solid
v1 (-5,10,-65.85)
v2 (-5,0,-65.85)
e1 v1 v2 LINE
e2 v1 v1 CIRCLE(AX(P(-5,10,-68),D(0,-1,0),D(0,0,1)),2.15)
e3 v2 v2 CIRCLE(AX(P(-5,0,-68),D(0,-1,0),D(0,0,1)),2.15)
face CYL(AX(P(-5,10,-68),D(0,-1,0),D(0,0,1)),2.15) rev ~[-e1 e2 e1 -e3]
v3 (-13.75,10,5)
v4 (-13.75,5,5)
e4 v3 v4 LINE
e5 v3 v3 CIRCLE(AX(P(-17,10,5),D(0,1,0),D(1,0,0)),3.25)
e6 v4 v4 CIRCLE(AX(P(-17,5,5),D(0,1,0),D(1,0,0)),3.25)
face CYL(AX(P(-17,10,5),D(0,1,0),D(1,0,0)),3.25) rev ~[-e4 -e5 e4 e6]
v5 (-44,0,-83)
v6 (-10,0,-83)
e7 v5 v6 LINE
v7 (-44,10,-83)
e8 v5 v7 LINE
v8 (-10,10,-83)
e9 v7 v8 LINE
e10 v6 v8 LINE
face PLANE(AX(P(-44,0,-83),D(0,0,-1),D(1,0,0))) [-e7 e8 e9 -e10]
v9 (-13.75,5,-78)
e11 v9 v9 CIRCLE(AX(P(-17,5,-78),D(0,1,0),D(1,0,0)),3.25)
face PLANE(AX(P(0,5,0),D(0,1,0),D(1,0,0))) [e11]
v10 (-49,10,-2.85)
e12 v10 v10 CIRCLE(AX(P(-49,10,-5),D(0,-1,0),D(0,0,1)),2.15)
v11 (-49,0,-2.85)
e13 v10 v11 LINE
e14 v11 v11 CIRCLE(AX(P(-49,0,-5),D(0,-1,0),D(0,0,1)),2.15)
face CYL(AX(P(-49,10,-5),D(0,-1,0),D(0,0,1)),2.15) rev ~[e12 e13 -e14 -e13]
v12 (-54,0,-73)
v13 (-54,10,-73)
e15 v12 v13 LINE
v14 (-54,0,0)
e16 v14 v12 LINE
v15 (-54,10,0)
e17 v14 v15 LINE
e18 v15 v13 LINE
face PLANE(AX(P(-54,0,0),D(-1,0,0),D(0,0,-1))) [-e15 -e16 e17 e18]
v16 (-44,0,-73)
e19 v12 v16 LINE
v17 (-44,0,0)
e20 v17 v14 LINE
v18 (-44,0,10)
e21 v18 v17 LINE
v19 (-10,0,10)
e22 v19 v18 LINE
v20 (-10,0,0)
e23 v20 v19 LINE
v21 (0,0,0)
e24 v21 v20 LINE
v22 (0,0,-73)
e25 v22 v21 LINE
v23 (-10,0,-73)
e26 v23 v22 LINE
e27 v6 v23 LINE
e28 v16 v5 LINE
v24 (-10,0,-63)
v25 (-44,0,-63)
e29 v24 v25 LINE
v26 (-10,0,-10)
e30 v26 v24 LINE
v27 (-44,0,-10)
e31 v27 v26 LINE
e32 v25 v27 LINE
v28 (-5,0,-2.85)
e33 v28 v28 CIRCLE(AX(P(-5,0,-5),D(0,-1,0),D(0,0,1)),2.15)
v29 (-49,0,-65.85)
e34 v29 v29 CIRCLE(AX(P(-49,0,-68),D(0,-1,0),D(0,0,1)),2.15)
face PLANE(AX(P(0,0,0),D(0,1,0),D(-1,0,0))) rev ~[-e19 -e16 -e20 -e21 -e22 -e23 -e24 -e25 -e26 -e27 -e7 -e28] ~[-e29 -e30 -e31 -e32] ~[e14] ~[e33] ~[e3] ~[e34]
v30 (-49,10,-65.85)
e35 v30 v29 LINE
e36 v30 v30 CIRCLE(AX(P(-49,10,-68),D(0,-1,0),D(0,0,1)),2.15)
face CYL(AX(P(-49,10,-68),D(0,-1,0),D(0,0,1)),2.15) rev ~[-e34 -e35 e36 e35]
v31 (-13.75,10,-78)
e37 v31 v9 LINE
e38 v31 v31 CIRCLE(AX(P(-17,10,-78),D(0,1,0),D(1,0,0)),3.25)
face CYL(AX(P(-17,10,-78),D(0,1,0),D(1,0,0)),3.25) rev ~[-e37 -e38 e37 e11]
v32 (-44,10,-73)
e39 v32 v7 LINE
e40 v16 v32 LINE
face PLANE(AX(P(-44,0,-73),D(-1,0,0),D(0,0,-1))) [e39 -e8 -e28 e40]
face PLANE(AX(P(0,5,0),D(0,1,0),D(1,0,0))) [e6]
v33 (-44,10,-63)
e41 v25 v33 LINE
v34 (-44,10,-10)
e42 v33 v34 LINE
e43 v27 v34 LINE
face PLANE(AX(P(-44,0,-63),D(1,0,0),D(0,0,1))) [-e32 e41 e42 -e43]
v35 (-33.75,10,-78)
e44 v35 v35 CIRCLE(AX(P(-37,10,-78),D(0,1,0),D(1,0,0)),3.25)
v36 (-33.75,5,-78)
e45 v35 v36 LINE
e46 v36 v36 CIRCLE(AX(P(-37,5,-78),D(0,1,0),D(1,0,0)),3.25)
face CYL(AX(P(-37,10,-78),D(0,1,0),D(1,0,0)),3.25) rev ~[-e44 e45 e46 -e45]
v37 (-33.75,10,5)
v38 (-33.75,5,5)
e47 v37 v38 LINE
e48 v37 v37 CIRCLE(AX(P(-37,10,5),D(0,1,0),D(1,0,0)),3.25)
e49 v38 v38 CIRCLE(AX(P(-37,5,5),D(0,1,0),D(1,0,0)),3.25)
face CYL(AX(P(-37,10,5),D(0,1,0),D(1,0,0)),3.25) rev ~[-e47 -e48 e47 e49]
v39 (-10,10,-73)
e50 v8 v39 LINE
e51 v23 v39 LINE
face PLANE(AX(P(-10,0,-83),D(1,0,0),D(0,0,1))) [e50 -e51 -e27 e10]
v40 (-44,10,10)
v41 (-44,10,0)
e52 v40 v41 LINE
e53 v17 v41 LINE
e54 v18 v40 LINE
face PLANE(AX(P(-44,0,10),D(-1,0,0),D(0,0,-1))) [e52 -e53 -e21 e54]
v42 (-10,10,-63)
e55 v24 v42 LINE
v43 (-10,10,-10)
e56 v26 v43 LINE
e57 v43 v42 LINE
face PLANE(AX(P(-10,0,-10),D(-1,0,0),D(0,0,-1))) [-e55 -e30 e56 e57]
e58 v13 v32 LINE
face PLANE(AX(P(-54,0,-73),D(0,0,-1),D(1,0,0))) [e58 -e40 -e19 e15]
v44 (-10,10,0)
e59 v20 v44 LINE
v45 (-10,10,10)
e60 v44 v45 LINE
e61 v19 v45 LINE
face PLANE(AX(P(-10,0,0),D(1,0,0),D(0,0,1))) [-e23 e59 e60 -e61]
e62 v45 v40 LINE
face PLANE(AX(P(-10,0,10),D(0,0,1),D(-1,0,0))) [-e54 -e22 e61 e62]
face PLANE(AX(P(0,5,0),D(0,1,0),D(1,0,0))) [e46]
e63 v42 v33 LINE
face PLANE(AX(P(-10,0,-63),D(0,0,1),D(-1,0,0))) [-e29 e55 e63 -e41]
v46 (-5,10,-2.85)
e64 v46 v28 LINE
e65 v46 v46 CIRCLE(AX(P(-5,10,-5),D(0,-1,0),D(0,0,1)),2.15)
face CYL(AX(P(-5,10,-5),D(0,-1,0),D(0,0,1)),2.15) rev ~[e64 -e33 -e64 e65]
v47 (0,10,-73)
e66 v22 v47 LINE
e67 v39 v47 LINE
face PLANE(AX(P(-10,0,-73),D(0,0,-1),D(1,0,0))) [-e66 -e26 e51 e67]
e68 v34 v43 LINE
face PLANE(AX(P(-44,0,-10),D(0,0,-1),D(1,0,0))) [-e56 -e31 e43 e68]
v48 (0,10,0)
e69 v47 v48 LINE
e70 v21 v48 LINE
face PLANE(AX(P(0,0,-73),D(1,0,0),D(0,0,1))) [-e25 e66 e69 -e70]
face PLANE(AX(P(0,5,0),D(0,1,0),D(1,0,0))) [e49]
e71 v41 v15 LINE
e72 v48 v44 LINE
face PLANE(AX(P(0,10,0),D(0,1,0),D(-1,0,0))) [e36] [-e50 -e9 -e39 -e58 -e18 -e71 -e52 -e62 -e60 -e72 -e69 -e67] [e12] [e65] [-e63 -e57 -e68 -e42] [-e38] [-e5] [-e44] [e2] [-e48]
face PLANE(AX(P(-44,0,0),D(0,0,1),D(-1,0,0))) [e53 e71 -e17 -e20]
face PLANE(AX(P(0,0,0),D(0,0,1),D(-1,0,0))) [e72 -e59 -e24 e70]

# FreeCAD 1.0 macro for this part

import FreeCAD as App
import Part
import Sketcher

V = App.Vector
Q = App.Units.Quantity

doc = App.newDocument("Part")
body = doc.addObject("PartDesign::Body", "Body")

sketch1 = body.newObject("Sketcher::SketchObject", "Sketch")
sketch1.AttachmentSupport = (doc.getObject("XZ_Plane"), [""])
sketch1.MapMode = "FlatFace"
sketch1.addGeometry([
    Part.LineSegment(V(-10, 0, 0), V(0, 0, 0)),
    Part.LineSegment(V(0, 0, 0), V(0, -73, 0)),
    Part.LineSegment(V(0, -73, 0), V(-10, -73, 0)),
    Part.LineSegment(V(-10, -73, 0), V(-10, -83, 0)),
    Part.LineSegment(V(-10, -83, 0), V(-44, -83, 0)),
    Part.LineSegment(V(-44, -83, 0), V(-44, -73, 0)),
    Part.LineSegment(V(-44, -73, 0), V(-54, -73, 0)),
    Part.LineSegment(V(-54, -73, 0), V(-54, 0, 0)),
    Part.LineSegment(V(-54, 0, 0), V(-44, 0, 0)),
    Part.LineSegment(V(-44, 0, 0), V(-44, 10, 0)),
    Part.LineSegment(V(-44, 10, 0), V(-10, 10, 0)),
    Part.LineSegment(V(-10, 10, 0), V(-10, 0, 0)),
], False)
sketch1.addConstraint([
    Sketcher.Constraint("Coincident", 0, 2, 1, 1),
    Sketcher.Constraint("Coincident", 1, 2, 2, 1),
    Sketcher.Constraint("Coincident", 2, 2, 3, 1),
    Sketcher.Constraint("Coincident", 3, 2, 4, 1),
    Sketcher.Constraint("Coincident", 4, 2, 5, 1),
    Sketcher.Constraint("Coincident", 5, 2, 6, 1),
    Sketcher.Constraint("Coincident", 6, 2, 7, 1),
    Sketcher.Constraint("Coincident", 7, 2, 8, 1),
    Sketcher.Constraint("Coincident", 8, 2, 9, 1),
    Sketcher.Constraint("Coincident", 9, 2, 10, 1),
    Sketcher.Constraint("Coincident", 10, 2, 11, 1),
    Sketcher.Constraint("Coincident", 11, 2, 0, 1),
    Sketcher.Constraint("Horizontal", 0),
    Sketcher.Constraint("Vertical", 1),
    Sketcher.Constraint("Horizontal", 2),
    Sketcher.Constraint("Vertical", 3),
    Sketcher.Constraint("Horizontal", 4),
    Sketcher.Constraint("Vertical", 5),
    Sketcher.Constraint("Horizontal", 6),
    Sketcher.Constraint("Vertical", 7),
    Sketcher.Constraint("Horizontal", 8),
    Sketcher.Constraint("Vertical", 9),
    Sketcher.Constraint("Horizontal", 10),
    Sketcher.Constraint("Vertical", 11),
    Sketcher.Constraint("Coincident", 0, 2, -1, 1),
    Sketcher.Constraint("PointOnObject", 7, 2, -1),
    Sketcher.Constraint("Horizontal", 2, 2, 5, 2),
    Sketcher.Constraint("Vertical", 5, 2, 8, 2),
    Sketcher.Constraint("Vertical", 3, 2, 10, 2),
    Sketcher.Constraint("Equal", 2, 6),
    Sketcher.Constraint("Equal", 8, 3),
    Sketcher.Constraint("Equal", 5, 9),
    Sketcher.Constraint("DistanceX", 0, 1, 0, 2, Q("10 mm")),
    Sketcher.Constraint("DistanceY", 1, 2, 1, 1, Q("73 mm")),
    Sketcher.Constraint("DistanceX", 6, 2, -1, 1, Q("54 mm")),
])
pad1 = body.newObject("PartDesign::Pad", "Pad")
pad1.Profile = sketch1
pad1.Length = 10
pad1.Reversed = True

sketch2 = body.newObject("Sketcher::SketchObject", "Sketch001")
sketch2.AttachmentSupport = (doc.getObject("XZ_Plane"), [""])
sketch2.MapMode = "FlatFace"
sketch2.AttachmentOffset = App.Placement(V(0, 0, -10), App.Rotation())
sketch2.addGeometry(Part.Circle(V(-49, -5, 0), V(0, 0, 1), 2.15), False)
sketch2.addConstraint([
    Sketcher.Constraint("Diameter", 0, Q("4.3 mm")),
    Sketcher.Constraint("DistanceX", 0, 3, -1, 1, Q("49 mm")),
    Sketcher.Constraint("DistanceY", 0, 3, -1, 1, Q("5 mm")),
])
doc.recompute()
hole = body.newObject("PartDesign::Hole", "Hole")
hole.Profile = sketch2
hole.ThreadType = "None"
hole.Diameter = 4.3
hole.DepthType = "ThroughAll"
hole.Reversed = True

sketch3 = body.newObject("Sketcher::SketchObject", "Sketch002")
sketch3.AttachmentSupport = (doc.getObject("XZ_Plane"), [""])
sketch3.MapMode = "FlatFace"
sketch3.AttachmentOffset = App.Placement(V(0, 0, -10), App.Rotation())
sketch3.addGeometry(Part.Circle(V(-5, -5, 0), V(0, 0, 1), 2.15), False)
sketch3.addConstraint([
    Sketcher.Constraint("Diameter", 0, Q("4.3 mm")),
    Sketcher.Constraint("DistanceX", 0, 3, -1, 1, Q("5 mm")),
    Sketcher.Constraint("DistanceY", 0, 3, -1, 1, Q("5 mm")),
])
doc.recompute()
hole2 = body.newObject("PartDesign::Hole", "Hole001")
hole2.Profile = sketch3
hole2.ThreadType = "None"
hole2.Diameter = 4.3
hole2.DepthType = "ThroughAll"
hole2.Reversed = True

sketch4 = body.newObject("Sketcher::SketchObject", "Sketch003")
sketch4.AttachmentSupport = (doc.getObject("XZ_Plane"), [""])
sketch4.MapMode = "FlatFace"
sketch4.AttachmentOffset = App.Placement(V(0, 0, -10), App.Rotation())
sketch4.addGeometry(Part.Circle(V(-5, -68, 0), V(0, 0, 1), 2.15), False)
sketch4.addConstraint([
    Sketcher.Constraint("Diameter", 0, Q("4.3 mm")),
    Sketcher.Constraint("DistanceX", 0, 3, -1, 1, Q("5 mm")),
    Sketcher.Constraint("DistanceY", 0, 3, -1, 1, Q("68 mm")),
])
doc.recompute()
hole3 = body.newObject("PartDesign::Hole", "Hole002")
hole3.Profile = sketch4
hole3.ThreadType = "None"
hole3.Diameter = 4.3
hole3.DepthType = "ThroughAll"
hole3.Reversed = True

sketch5 = body.newObject("Sketcher::SketchObject", "Sketch004")
sketch5.AttachmentSupport = (doc.getObject("XZ_Plane"), [""])
sketch5.MapMode = "FlatFace"
sketch5.AttachmentOffset = App.Placement(V(0, 0, -10), App.Rotation())
sketch5.addGeometry(Part.Circle(V(-49, -68, 0), V(0, 0, 1), 2.15), False)
sketch5.addConstraint([
    Sketcher.Constraint("Diameter", 0, Q("4.3 mm")),
    Sketcher.Constraint("DistanceX", 0, 3, -1, 1, Q("49 mm")),
    Sketcher.Constraint("DistanceY", 0, 3, -1, 1, Q("68 mm")),
])
doc.recompute()
hole4 = body.newObject("PartDesign::Hole", "Hole003")
hole4.Profile = sketch5
hole4.ThreadType = "None"
hole4.Diameter = 4.3
hole4.DepthType = "ThroughAll"
hole4.Reversed = True

sketch6 = body.newObject("Sketcher::SketchObject", "Sketch005")
sketch6.AttachmentSupport = (doc.getObject("XZ_Plane"), [""])
sketch6.MapMode = "FlatFace"
sketch6.AttachmentOffset = App.Placement(V(0, 0, -10), App.Rotation())
sketch6.addGeometry([
    Part.Circle(V(-37, 5, 0), V(0, 0, 1), 3.25),
    Part.Circle(V(-17, 5, 0), V(0, 0, 1), 3.25),
    Part.Circle(V(-37, -78, 0), V(0, 0, 1), 3.25),
    Part.Circle(V(-17, -78, 0), V(0, 0, 1), 3.25),
], False)
sketch6.addConstraint([
    Sketcher.Constraint("Equal", 0, 1),
    Sketcher.Constraint("Equal", 1, 2),
    Sketcher.Constraint("Equal", 2, 3),
    Sketcher.Constraint("Horizontal", 0, 3, 1, 3),
    Sketcher.Constraint("Horizontal", 2, 3, 3, 3),
    Sketcher.Constraint("Vertical", 0, 3, 2, 3),
    Sketcher.Constraint("Vertical", 1, 3, 3, 3),
    Sketcher.Constraint("Diameter", 0, Q("6.5 mm")),
    Sketcher.Constraint("DistanceY", -1, 1, 0, 3, Q("5 mm")),
    Sketcher.Constraint("DistanceX", 0, 3, -1, 1, Q("37 mm")),
    Sketcher.Constraint("DistanceX", 1, 3, -1, 1, Q("17 mm")),
    Sketcher.Constraint("DistanceY", 2, 3, -1, 1, Q("78 mm")),
])
pocket1 = body.newObject("PartDesign::Pocket", "Pocket")
pocket1.Profile = sketch6
pocket1.Length = 5
pocket1.Reversed = True

sketch7 = body.newObject("Sketcher::SketchObject", "Sketch006")
sketch7.AttachmentSupport = (doc.getObject("XZ_Plane"), [""])
sketch7.MapMode = "FlatFace"
sketch7.addGeometry([
    Part.LineSegment(V(-10, -10, 0), V(-44, -10, 0)),
    Part.LineSegment(V(-44, -10, 0), V(-44, -63, 0)),
    Part.LineSegment(V(-44, -63, 0), V(-10, -63, 0)),
    Part.LineSegment(V(-10, -63, 0), V(-10, -10, 0)),
], False)
sketch7.addConstraint([
    Sketcher.Constraint("Coincident", 0, 2, 1, 1),
    Sketcher.Constraint("Coincident", 1, 2, 2, 1),
    Sketcher.Constraint("Coincident", 2, 2, 3, 1),
    Sketcher.Constraint("Coincident", 3, 2, 0, 1),
    Sketcher.Constraint("Horizontal", 0),
    Sketcher.Constraint("Vertical", 1),
    Sketcher.Constraint("Horizontal", 2),
    Sketcher.Constraint("Vertical", 3),
    Sketcher.Constraint("DistanceY", 0, 2, -1, 1, Q("10 mm")),
    Sketcher.Constraint("DistanceX", 2, 2, -1, 1, Q("10 mm")),
    Sketcher.Constraint("DistanceX", 0, 2, 0, 1, Q("34 mm")),
    Sketcher.Constraint("DistanceY", 1, 2, 1, 1, Q("53 mm")),
])
pocket2 = body.newObject("PartDesign::Pocket", "Pocket001")
pocket2.Profile = sketch7
pocket2.Length = 10

doc.recompute()
